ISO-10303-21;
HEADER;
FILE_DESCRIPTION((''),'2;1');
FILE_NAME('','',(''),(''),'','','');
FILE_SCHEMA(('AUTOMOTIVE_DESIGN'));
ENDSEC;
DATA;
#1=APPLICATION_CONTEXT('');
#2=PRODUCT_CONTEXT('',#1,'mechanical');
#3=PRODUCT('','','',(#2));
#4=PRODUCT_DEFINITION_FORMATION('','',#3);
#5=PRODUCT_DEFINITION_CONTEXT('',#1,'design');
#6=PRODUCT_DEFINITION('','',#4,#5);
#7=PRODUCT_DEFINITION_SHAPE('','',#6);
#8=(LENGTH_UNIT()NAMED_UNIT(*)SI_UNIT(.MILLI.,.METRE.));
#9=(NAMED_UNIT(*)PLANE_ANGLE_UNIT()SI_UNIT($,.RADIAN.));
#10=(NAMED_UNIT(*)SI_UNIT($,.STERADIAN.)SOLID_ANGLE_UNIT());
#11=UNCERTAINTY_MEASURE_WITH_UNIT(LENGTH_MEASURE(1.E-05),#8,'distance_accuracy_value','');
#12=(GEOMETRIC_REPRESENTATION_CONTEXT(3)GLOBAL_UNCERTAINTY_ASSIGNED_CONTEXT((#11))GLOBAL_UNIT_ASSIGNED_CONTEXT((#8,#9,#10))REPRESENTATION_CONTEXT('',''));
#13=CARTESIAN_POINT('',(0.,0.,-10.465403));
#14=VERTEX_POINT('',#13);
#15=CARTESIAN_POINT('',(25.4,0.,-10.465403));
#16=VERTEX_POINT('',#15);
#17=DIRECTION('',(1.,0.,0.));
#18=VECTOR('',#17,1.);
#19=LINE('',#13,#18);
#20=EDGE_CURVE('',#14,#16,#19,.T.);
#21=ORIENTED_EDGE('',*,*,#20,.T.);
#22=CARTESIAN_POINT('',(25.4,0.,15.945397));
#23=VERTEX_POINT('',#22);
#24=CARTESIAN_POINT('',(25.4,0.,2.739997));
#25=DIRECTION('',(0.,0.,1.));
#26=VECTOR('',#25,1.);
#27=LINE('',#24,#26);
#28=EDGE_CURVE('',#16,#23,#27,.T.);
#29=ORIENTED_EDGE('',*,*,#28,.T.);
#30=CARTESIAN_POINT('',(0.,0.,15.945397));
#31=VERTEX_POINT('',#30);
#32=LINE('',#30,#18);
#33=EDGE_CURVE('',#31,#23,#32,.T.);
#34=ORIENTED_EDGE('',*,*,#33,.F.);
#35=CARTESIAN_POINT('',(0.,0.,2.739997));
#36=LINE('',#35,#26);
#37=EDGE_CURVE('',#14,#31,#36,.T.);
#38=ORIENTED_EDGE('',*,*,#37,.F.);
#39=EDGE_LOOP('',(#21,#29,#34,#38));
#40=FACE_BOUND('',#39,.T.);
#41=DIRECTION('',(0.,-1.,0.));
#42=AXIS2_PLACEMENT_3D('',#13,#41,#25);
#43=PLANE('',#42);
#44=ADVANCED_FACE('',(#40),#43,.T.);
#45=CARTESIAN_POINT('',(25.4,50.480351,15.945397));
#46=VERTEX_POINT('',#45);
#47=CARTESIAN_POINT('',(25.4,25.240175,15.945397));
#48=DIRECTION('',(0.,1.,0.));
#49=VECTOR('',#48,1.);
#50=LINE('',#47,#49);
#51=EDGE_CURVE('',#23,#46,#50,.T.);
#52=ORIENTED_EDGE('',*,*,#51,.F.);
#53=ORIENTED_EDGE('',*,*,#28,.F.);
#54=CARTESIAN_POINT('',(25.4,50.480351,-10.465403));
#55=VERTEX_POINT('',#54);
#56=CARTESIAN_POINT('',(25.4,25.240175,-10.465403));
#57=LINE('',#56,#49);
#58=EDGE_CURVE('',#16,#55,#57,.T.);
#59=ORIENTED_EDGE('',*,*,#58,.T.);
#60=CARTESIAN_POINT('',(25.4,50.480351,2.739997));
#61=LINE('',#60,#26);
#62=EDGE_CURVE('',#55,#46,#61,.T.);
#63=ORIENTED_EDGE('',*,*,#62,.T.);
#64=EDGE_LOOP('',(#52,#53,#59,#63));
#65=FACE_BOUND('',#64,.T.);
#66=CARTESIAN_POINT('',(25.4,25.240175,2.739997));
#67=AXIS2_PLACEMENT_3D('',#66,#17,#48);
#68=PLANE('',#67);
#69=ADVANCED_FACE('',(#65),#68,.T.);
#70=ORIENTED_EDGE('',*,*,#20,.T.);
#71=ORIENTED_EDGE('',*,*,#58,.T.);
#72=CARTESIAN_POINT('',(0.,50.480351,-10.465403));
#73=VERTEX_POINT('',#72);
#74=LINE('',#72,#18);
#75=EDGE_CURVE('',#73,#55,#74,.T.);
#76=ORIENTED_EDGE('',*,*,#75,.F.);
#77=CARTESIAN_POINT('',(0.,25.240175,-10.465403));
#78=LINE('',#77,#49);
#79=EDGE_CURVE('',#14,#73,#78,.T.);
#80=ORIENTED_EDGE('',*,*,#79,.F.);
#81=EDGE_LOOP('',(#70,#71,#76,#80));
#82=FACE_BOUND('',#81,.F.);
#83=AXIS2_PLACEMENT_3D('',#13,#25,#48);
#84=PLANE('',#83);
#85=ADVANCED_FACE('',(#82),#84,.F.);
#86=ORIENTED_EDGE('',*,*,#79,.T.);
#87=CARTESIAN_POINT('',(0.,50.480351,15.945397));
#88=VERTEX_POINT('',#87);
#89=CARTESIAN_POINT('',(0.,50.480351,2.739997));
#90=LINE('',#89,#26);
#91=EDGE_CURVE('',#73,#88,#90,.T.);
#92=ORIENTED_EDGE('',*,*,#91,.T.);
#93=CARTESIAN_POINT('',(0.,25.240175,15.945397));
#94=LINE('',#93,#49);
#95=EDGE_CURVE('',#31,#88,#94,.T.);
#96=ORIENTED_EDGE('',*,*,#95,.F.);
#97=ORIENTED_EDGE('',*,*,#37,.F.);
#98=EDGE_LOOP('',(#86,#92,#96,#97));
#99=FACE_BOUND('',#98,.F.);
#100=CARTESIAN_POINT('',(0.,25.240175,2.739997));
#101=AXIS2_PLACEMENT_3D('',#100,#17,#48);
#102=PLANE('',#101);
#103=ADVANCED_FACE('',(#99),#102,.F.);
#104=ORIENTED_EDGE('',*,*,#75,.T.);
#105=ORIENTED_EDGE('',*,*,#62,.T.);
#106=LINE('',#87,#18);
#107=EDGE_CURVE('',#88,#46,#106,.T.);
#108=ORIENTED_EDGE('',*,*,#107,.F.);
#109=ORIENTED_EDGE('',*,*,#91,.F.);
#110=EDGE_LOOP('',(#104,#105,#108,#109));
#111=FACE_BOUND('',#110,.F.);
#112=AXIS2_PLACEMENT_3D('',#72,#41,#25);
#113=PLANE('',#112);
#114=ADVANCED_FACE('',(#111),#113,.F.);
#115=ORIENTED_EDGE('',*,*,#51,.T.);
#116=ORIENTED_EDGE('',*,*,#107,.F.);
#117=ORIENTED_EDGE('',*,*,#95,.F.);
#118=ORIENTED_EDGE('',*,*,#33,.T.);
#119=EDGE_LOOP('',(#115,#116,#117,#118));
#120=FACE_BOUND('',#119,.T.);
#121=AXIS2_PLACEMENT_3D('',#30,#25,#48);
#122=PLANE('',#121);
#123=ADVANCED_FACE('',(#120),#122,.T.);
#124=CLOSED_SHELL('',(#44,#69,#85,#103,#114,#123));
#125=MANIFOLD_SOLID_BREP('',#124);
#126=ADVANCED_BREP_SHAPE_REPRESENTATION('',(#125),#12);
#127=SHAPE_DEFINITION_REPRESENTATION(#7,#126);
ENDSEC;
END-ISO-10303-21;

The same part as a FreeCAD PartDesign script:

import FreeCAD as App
import Part
import Sketcher
Q = App.Units.Quantity


def add_polygon(sketch, points):
    """Adds a closed chain of lines whose ends are joined by coincident constraints."""
    first, n = sketch.GeometryCount, len(points)
    for a, b in zip(points, points[1:] + points[:1]):
        sketch.addGeometry(Part.LineSegment(App.Vector(*a, 0), App.Vector(*b, 0)), False)
    for i in range(n):
        sketch.addConstraint(Sketcher.Constraint("Coincident", first + i, 2, first + (i + 1) % n, 1))

doc = App.newDocument("Part")
body = doc.addObject("PartDesign::Body", "Body")

# Sketch on XZ plane
sketch1 = doc.addObject("Sketcher::SketchObject", "Sketch")
body.addObject(sketch1)
sketch1.AttachmentSupport = (doc.XZ_Plane, [""])
sketch1.MapMode = "FlatFace"
add_polygon(sketch1, [(-38.626686, -9.971539), (-20.369682, -28.674185), (0, -28.674185), (0, 22.651017), (-20.369682, 22.651017), (-38.626686, 8.427408)])  # lines 0-5
sketch1.addConstraint(Sketcher.Constraint("Horizontal", 1))
sketch1.addConstraint(Sketcher.Constraint("Vertical", 2))
sketch1.addConstraint(Sketcher.Constraint("Horizontal", 3))
sketch1.addConstraint(Sketcher.Constraint("Vertical", 5))
sketch1.addConstraint(Sketcher.Constraint("PointOnObject", 1, 2, -2))
sketch1.addConstraint(Sketcher.Constraint("Vertical", 0, 2, 3, 2))
sketch1.addConstraint(Sketcher.Constraint("DistanceY", 2, 1, 2, 2, 51.325202))
sketch1.addConstraint(Sketcher.Constraint("Distance", 0, 26.136318))
sketch1.addConstraint(Sketcher.Constraint("DistanceX", 1, 1, 1, 2, 20.369682))
sketch1.addConstraint(Sketcher.Constraint("DistanceY", 5, 2, 5, 1, 18.398947))
sketch1.addConstraint(Sketcher.Constraint("DistanceY", 5, 2, -1, 1, 9.971539))
sketch1.addConstraint(Sketcher.Constraint("DistanceY", 4, 2, 3, 2, 14.223609))
pad1 = doc.addObject("PartDesign::Pad", "Pad")
body.addObject(pad1)
pad1.Profile = sketch1
pad1.Length = Q("5 in")
pad1.Reversed = True
body2 = doc.addObject("PartDesign::Body", "Body001")

# Sketch on YZ plane
sketch2 = doc.addObject("Sketcher::SketchObject", "Sketch001")
body2.addObject(sketch2)
sketch2.AttachmentSupport = (doc.getObject("YZ_Plane001"), [""])
sketch2.MapMode = "FlatFace"
add_polygon(sketch2, [(0, 15.945397), (0, -10.465403), (50.480351, -10.465403), (50.480351, 15.945397)])  # lines 0-3
sketch2.addConstraint(Sketcher.Constraint("Vertical", 0))
sketch2.addConstraint(Sketcher.Constraint("Horizontal", 1))
sketch2.addConstraint(Sketcher.Constraint("Vertical", 2))
sketch2.addConstraint(Sketcher.Constraint("Horizontal", 3))
sketch2.addConstraint(Sketcher.Constraint("PointOnObject", 0, 2, -2))
sketch2.addConstraint(Sketcher.Constraint("DistanceY", 0, 2, 0, 1, 26.4108))
sketch2.addConstraint(Sketcher.Constraint("DistanceX", 1, 1, 1, 2, 50.480351))
sketch2.addConstraint(Sketcher.Constraint("DistanceY", 0, 2, -1, 1, 10.465403))
pad2 = doc.addObject("PartDesign::Pad", "Pad001")
body2.addObject(pad2)
pad2.Profile = sketch2
pad2.Length = Q("1 in")
body.Visibility = False

doc.recompute()
